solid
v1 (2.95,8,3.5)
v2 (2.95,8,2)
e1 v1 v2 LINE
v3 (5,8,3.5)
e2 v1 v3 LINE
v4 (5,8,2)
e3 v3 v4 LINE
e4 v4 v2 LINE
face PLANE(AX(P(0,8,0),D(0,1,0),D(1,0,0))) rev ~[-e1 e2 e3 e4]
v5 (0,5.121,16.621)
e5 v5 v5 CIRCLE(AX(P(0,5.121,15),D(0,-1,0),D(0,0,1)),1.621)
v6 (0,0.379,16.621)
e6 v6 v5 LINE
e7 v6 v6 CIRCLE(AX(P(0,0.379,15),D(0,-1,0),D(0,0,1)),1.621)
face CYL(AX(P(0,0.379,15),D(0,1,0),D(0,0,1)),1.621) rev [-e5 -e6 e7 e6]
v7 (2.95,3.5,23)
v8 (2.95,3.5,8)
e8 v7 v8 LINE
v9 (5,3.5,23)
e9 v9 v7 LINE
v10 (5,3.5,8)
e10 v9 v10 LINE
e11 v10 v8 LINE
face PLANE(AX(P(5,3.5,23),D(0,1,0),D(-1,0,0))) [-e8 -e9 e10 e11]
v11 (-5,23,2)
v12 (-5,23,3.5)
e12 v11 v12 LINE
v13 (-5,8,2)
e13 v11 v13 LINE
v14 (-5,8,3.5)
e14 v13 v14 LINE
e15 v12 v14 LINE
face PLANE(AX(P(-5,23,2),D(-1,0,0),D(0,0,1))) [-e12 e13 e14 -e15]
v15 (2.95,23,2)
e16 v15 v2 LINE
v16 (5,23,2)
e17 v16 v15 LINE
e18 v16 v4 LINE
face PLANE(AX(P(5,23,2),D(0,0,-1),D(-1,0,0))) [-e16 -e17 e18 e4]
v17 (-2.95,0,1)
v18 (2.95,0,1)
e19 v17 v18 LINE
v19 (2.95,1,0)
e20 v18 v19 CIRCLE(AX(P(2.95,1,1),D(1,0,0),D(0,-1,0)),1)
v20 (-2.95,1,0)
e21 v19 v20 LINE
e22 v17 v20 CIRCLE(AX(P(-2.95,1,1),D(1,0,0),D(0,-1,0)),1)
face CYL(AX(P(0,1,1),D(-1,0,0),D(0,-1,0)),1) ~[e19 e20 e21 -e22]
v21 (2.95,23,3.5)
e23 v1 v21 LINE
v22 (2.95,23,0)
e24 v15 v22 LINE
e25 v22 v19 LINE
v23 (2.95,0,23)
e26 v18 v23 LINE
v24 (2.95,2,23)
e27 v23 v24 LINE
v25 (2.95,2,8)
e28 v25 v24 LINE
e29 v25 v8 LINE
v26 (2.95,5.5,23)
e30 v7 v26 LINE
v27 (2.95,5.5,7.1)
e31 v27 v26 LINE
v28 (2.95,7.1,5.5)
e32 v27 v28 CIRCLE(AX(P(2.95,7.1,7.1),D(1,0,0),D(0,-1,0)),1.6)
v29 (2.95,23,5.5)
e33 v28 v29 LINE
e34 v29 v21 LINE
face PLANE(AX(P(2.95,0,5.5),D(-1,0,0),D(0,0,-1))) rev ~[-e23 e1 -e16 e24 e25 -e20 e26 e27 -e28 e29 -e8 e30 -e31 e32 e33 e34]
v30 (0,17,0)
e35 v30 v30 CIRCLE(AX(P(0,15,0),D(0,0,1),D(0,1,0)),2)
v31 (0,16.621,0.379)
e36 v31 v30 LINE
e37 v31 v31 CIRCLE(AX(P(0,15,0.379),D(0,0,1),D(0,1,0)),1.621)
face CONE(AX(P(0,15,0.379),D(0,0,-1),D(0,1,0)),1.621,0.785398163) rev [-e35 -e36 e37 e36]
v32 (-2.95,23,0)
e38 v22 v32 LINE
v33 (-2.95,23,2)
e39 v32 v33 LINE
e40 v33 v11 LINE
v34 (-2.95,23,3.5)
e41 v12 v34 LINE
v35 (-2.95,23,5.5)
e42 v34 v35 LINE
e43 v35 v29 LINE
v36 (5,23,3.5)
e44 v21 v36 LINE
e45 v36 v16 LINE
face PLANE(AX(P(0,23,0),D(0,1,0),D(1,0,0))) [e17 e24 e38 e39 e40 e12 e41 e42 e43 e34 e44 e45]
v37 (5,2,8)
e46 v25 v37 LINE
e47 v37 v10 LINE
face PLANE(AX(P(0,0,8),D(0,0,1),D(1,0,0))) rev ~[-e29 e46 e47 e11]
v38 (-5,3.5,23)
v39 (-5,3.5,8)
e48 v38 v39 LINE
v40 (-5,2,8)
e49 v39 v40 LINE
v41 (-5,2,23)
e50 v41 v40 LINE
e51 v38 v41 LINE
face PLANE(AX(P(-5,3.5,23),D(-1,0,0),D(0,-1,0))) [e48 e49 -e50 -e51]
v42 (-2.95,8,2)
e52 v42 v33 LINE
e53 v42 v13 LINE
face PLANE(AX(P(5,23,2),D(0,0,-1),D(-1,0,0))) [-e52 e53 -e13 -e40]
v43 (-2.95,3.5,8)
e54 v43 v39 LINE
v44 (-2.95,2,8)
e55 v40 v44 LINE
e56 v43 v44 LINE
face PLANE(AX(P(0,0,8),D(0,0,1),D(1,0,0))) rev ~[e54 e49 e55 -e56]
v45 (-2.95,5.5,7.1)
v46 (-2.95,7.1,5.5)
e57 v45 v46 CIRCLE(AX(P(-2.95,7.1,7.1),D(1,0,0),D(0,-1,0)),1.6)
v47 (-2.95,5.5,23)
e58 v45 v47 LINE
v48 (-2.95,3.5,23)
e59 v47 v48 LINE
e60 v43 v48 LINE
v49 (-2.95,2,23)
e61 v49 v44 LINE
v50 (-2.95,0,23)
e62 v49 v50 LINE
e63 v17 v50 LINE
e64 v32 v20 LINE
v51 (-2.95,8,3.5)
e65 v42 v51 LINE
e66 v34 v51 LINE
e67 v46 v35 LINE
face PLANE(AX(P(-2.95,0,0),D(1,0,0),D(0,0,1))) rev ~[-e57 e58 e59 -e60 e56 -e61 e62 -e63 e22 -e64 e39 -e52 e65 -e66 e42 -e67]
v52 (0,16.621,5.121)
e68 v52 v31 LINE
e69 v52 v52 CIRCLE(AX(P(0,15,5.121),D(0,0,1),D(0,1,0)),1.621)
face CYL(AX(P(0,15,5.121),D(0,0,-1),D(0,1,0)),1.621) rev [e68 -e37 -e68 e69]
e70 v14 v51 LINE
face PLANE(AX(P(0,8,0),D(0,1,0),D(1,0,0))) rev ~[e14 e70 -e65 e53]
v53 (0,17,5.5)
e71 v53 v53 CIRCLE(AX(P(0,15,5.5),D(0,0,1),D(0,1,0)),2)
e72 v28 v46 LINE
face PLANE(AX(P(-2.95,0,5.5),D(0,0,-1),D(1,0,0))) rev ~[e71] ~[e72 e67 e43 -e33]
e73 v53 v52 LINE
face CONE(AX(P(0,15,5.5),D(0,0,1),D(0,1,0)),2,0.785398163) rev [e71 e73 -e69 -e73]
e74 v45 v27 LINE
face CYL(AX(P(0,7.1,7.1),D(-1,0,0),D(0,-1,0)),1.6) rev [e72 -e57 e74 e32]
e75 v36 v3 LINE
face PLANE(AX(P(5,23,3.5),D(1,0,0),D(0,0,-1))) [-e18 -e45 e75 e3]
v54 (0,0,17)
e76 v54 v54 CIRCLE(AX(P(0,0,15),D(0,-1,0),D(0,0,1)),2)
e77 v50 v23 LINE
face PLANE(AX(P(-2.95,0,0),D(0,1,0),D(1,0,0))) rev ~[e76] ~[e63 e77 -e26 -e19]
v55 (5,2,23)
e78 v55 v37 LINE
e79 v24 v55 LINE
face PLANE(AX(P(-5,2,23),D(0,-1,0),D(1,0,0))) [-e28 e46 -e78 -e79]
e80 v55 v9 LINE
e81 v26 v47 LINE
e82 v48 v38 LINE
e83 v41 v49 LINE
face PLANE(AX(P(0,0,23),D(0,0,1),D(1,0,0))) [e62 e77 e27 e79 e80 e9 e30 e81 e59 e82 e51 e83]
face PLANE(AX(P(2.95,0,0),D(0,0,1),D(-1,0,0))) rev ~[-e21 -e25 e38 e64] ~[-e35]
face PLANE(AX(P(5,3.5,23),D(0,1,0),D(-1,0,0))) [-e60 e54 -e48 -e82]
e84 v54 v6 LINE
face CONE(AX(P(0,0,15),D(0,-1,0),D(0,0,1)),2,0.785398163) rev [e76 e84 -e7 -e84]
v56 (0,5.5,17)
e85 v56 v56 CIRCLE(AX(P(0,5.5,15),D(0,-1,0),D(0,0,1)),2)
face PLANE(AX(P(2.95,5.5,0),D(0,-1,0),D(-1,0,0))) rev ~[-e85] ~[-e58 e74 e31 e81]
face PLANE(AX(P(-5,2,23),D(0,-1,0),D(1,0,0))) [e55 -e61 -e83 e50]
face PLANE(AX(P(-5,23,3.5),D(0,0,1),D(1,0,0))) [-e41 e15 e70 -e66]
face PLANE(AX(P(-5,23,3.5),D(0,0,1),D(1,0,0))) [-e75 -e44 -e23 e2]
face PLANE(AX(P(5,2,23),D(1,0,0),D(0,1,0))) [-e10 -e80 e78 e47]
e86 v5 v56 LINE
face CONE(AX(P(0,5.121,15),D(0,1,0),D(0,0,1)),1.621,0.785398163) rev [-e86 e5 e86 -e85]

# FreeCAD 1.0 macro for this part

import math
import FreeCAD as App
import Part
import Sketcher
Q = App.Units.Quantity

doc = App.newDocument("Part")
body = doc.addObject("PartDesign::Body", "Body")

# Sketch on XY plane
sketch1 = body.newObject("Sketcher::SketchObject", "Sketch")
sketch1.AttachmentSupport = (doc.getObject("XY_Plane"), [""])
sketch1.MapMode = "FlatFace"
sketch1.addGeometry(Part.LineSegment(App.Vector(-3, 6, 0), App.Vector(-3, 0, 0)), False)
sketch1.addGeometry(Part.LineSegment(App.Vector(-3, 0, 0), App.Vector(3, 0, 0)), False)
sketch1.addGeometry(Part.LineSegment(App.Vector(3, 0, 0), App.Vector(3, 6, 0)), False)
sketch1.addGeometry(Part.LineSegment(App.Vector(3, 6, 0), App.Vector(-3, 6, 0)), False)
sketch1.addConstraint(Sketcher.Constraint("Coincident", 0, 2, 1, 1))
sketch1.addConstraint(Sketcher.Constraint("Coincident", 1, 2, 2, 1))
sketch1.addConstraint(Sketcher.Constraint("Coincident", 2, 2, 3, 1))
sketch1.addConstraint(Sketcher.Constraint("Coincident", 3, 2, 0, 1))
sketch1.addConstraint(Sketcher.Constraint("Vertical", 0))
sketch1.addConstraint(Sketcher.Constraint("Horizontal", 1))
sketch1.addConstraint(Sketcher.Constraint("Vertical", 2))
sketch1.addConstraint(Sketcher.Constraint("Horizontal", 3))
sketch1.addConstraint(Sketcher.Constraint("Symmetric", 0, 2, 1, 2, -1, 1))
sketch1.addConstraint(Sketcher.Constraint("DistanceX", 1, 1, 1, 2, Q("5.9 mm")))
sketch1.addConstraint(Sketcher.Constraint("DistanceY", 0, 2, 0, 1, Q("5.5 mm")))
pad1 = body.newObject("PartDesign::Pad", "Pad")
pad1.Profile = sketch1
pad1.Length = 23

# Sketch on XY plane
sketch2 = body.newObject("Sketcher::SketchObject", "Sketch001")
sketch2.AttachmentSupport = (doc.getObject("XY_Plane"), [""])
sketch2.MapMode = "FlatFace"
sketch2.AttachmentOffset = App.Placement(App.Vector(0, 0, 23), App.Rotation())
sketch2.addGeometry(Part.LineSegment(App.Vector(-5, 3.5, 0), App.Vector(-5, 2, 0)), False)
sketch2.addGeometry(Part.LineSegment(App.Vector(-5, 2, 0), App.Vector(5, 2, 0)), False)
sketch2.addGeometry(Part.LineSegment(App.Vector(5, 2, 0), App.Vector(5, 3.5, 0)), False)
sketch2.addGeometry(Part.LineSegment(App.Vector(5, 3.5, 0), App.Vector(-5, 3.5, 0)), False)
sketch2.addConstraint(Sketcher.Constraint("Coincident", 0, 2, 1, 1))
sketch2.addConstraint(Sketcher.Constraint("Coincident", 1, 2, 2, 1))
sketch2.addConstraint(Sketcher.Constraint("Coincident", 2, 2, 3, 1))
sketch2.addConstraint(Sketcher.Constraint("Coincident", 3, 2, 0, 1))
sketch2.addConstraint(Sketcher.Constraint("Vertical", 0))
sketch2.addConstraint(Sketcher.Constraint("Horizontal", 1))
sketch2.addConstraint(Sketcher.Constraint("Vertical", 2))
sketch2.addConstraint(Sketcher.Constraint("Horizontal", 3))
sketch2.addConstraint(Sketcher.Constraint("DistanceX", 1, 1, 1, 2, Q("10 mm")))
sketch2.addConstraint(Sketcher.Constraint("DistanceY", 0, 2, 0, 1, Q("1.5 mm")))
sketch2.addConstraint(Sketcher.Constraint("DistanceX", 0, 2, -1, 1, Q("5 mm")))
sketch2.addConstraint(Sketcher.Constraint("DistanceY", -1, 1, 0, 2, Q("2 mm")))
pad2 = body.newObject("PartDesign::Pad", "Pad001")
pad2.Profile = sketch2
pad2.Length = 15
pad2.Reversed = True

# Sketch on XZ plane
sketch3 = body.newObject("Sketcher::SketchObject", "Sketch002")
sketch3.AttachmentSupport = (doc.getObject("XZ_Plane"), [""])
sketch3.MapMode = "FlatFace"
sketch3.addGeometry(Part.LineSegment(App.Vector(-3, 0, 0), App.Vector(-3, 6, 0)), False)
sketch3.addGeometry(Part.LineSegment(App.Vector(-3, 6, 0), App.Vector(3, 6, 0)), False)
sketch3.addGeometry(Part.LineSegment(App.Vector(3, 6, 0), App.Vector(3, 0, 0)), False)
sketch3.addGeometry(Part.LineSegment(App.Vector(3, 0, 0), App.Vector(-3, 0, 0)), False)
sketch3.addConstraint(Sketcher.Constraint("Coincident", 0, 2, 1, 1))
sketch3.addConstraint(Sketcher.Constraint("Coincident", 1, 2, 2, 1))
sketch3.addConstraint(Sketcher.Constraint("Coincident", 2, 2, 3, 1))
sketch3.addConstraint(Sketcher.Constraint("Coincident", 3, 2, 0, 1))
sketch3.addConstraint(Sketcher.Constraint("Vertical", 0))
sketch3.addConstraint(Sketcher.Constraint("Horizontal", 1))
sketch3.addConstraint(Sketcher.Constraint("Vertical", 2))
sketch3.addConstraint(Sketcher.Constraint("Horizontal", 3))
sketch3.addConstraint(Sketcher.Constraint("Symmetric", 2, 2, 3, 2, -1, 1))
sketch3.addConstraint(Sketcher.Constraint("DistanceX", 1, 1, 1, 2, Q("5.9 mm")))
sketch3.addConstraint(Sketcher.Constraint("DistanceY", 0, 1, 0, 2, Q("5.5 mm")))
pad3 = body.newObject("PartDesign::Pad", "Pad002")
pad3.Profile = sketch3
pad3.Length = 23
pad3.Reversed = True

# Sketch on XZ plane
sketch4 = body.newObject("Sketcher::SketchObject", "Sketch003")
sketch4.AttachmentSupport = (doc.getObject("XZ_Plane"), [""])
sketch4.MapMode = "FlatFace"
sketch4.AttachmentOffset = App.Placement(App.Vector(0, 0, -23), App.Rotation())
sketch4.addGeometry(Part.LineSegment(App.Vector(-5, 2, 0), App.Vector(-5, 3.5, 0)), False)
sketch4.addGeometry(Part.LineSegment(App.Vector(-5, 3.5, 0), App.Vector(5, 3.5, 0)), False)
sketch4.addGeometry(Part.LineSegment(App.Vector(5, 3.5, 0), App.Vector(5, 2, 0)), False)
sketch4.addGeometry(Part.LineSegment(App.Vector(5, 2, 0), App.Vector(-5, 2, 0)), False)
sketch4.addConstraint(Sketcher.Constraint("Coincident", 0, 2, 1, 1))
sketch4.addConstraint(Sketcher.Constraint("Coincident", 1, 2, 2, 1))
sketch4.addConstraint(Sketcher.Constraint("Coincident", 2, 2, 3, 1))
sketch4.addConstraint(Sketcher.Constraint("Coincident", 3, 2, 0, 1))
sketch4.addConstraint(Sketcher.Constraint("Vertical", 0))
sketch4.addConstraint(Sketcher.Constraint("Horizontal", 1))
sketch4.addConstraint(Sketcher.Constraint("Vertical", 2))
sketch4.addConstraint(Sketcher.Constraint("Horizontal", 3))
sketch4.addConstraint(Sketcher.Constraint("DistanceX", 1, 1, 1, 2, Q("10 mm")))
sketch4.addConstraint(Sketcher.Constraint("DistanceY", 0, 1, 0, 2, Q("1.5 mm")))
sketch4.addConstraint(Sketcher.Constraint("DistanceX", 0, 2, -1, 1, Q("5 mm")))
sketch4.addConstraint(Sketcher.Constraint("DistanceY", -1, 1, 2, 2, Q("2 mm")))
pad4 = body.newObject("PartDesign::Pad", "Pad003")
pad4.Profile = sketch4
pad4.Length = 15

# Sketch on YZ plane
sketch5 = body.newObject("Sketcher::SketchObject", "Sketch004")
sketch5.AttachmentSupport = (doc.getObject("YZ_Plane"), [""])
sketch5.MapMode = "FlatFace"
sketch5.addGeometry(Part.LineSegment(App.Vector(0, 15, 0), App.Vector(5.5, 15, 0)), False)
sketch5.addGeometry(Part.LineSegment(App.Vector(5.5, 15, 0), App.Vector(5.5, 17, 0)), False)
sketch5.addGeometry(Part.LineSegment(App.Vector(5.5, 17, 0), App.Vector(5.1, 16.6, 0)), False)
sketch5.addGeometry(Part.LineSegment(App.Vector(5.1, 16.6, 0), App.Vector(0.4, 16.6, 0)), False)
sketch5.addGeometry(Part.LineSegment(App.Vector(0.4, 16.6, 0), App.Vector(0, 17, 0)), False)
sketch5.addGeometry(Part.LineSegment(App.Vector(0, 17, 0), App.Vector(0, 15, 0)), False)
sketch5.addGeometry(Part.LineSegment(App.Vector(5.5, 15, 0), App.Vector(0, 15, 0)), True)  # axis
sketch5.addConstraint(Sketcher.Constraint("Coincident", 0, 2, 1, 1))
sketch5.addConstraint(Sketcher.Constraint("Coincident", 1, 2, 2, 1))
sketch5.addConstraint(Sketcher.Constraint("Coincident", 2, 2, 3, 1))
sketch5.addConstraint(Sketcher.Constraint("Coincident", 3, 2, 4, 1))
sketch5.addConstraint(Sketcher.Constraint("Coincident", 4, 2, 5, 1))
sketch5.addConstraint(Sketcher.Constraint("Coincident", 5, 2, 0, 1))
sketch5.addConstraint(Sketcher.Constraint("Horizontal", 0))
sketch5.addConstraint(Sketcher.Constraint("Vertical", 1))
sketch5.addConstraint(Sketcher.Constraint("Horizontal", 3))
sketch5.addConstraint(Sketcher.Constraint("Vertical", 5))
sketch5.addConstraint(Sketcher.Constraint("Horizontal", 6))
sketch5.addConstraint(Sketcher.Constraint("Coincident", 6, 1, 0, 2))
sketch5.addConstraint(Sketcher.Constraint("PointOnObject", 4, 2, -2))
sketch5.addConstraint(Sketcher.Constraint("PointOnObject", 6, 2, -2))
sketch5.addConstraint(Sketcher.Constraint("Perpendicular", 2, 4))
sketch5.addConstraint(Sketcher.Constraint("Horizontal", 1, 2, 4, 2))
sketch5.addConstraint(Sketcher.Constraint("Equal", 2, 4))
sketch5.addConstraint(Sketcher.Constraint("DistanceY", 1, 1, 1, 2, Q("2 mm")))
sketch5.addConstraint(Sketcher.Constraint("DistanceX", 0, 1, 0, 2, Q("5.5 mm")))
sketch5.addConstraint(Sketcher.Constraint("DistanceY", -1, 1, 0, 2, Q("15 mm")))
sketch5.addConstraint(Sketcher.Constraint("DistanceX", 3, 2, 3, 1, Q("4.742 mm")))
groove = body.newObject("PartDesign::Groove", "Groove")
groove.Profile = sketch5
groove.ReferenceAxis = (sketch5, ["Axis0"])
groove.Angle = 360

# Sketch on YZ plane
sketch6 = body.newObject("Sketcher::SketchObject", "Sketch005")
sketch6.AttachmentSupport = (doc.getObject("YZ_Plane"), [""])
sketch6.MapMode = "FlatFace"
sketch6.addGeometry(Part.LineSegment(App.Vector(15, 5.5, 0), App.Vector(15, 0, 0)), False)
sketch6.addGeometry(Part.LineSegment(App.Vector(15, 0, 0), App.Vector(17, 0, 0)), False)
sketch6.addGeometry(Part.LineSegment(App.Vector(17, 0, 0), App.Vector(16.6, 0.4, 0)), False)
sketch6.addGeometry(Part.LineSegment(App.Vector(16.6, 0.4, 0), App.Vector(16.6, 5.1, 0)), False)
sketch6.addGeometry(Part.LineSegment(App.Vector(16.6, 5.1, 0), App.Vector(17, 5.5, 0)), False)
sketch6.addGeometry(Part.LineSegment(App.Vector(17, 5.5, 0), App.Vector(15, 5.5, 0)), False)
sketch6.addGeometry(Part.LineSegment(App.Vector(15, 0, 0), App.Vector(15, 5.5, 0)), True)  # axis
sketch6.addConstraint(Sketcher.Constraint("Coincident", 0, 2, 1, 1))
sketch6.addConstraint(Sketcher.Constraint("Coincident", 1, 2, 2, 1))
sketch6.addConstraint(Sketcher.Constraint("Coincident", 2, 2, 3, 1))
sketch6.addConstraint(Sketcher.Constraint("Coincident", 3, 2, 4, 1))
sketch6.addConstraint(Sketcher.Constraint("Coincident", 4, 2, 5, 1))
sketch6.addConstraint(Sketcher.Constraint("Coincident", 5, 2, 0, 1))
sketch6.addConstraint(Sketcher.Constraint("Vertical", 0))
sketch6.addConstraint(Sketcher.Constraint("Horizontal", 1))
sketch6.addConstraint(Sketcher.Constraint("Vertical", 3))
sketch6.addConstraint(Sketcher.Constraint("Horizontal", 5))
sketch6.addConstraint(Sketcher.Constraint("Vertical", 6))
sketch6.addConstraint(Sketcher.Constraint("Coincident", 6, 1, 0, 2))
sketch6.addConstraint(Sketcher.Constraint("PointOnObject", 0, 2, -1))
sketch6.addConstraint(Sketcher.Constraint("Perpendicular", 2, 4))
sketch6.addConstraint(Sketcher.Constraint("Horizontal", 4, 2, 6, 2))
sketch6.addConstraint(Sketcher.Constraint("Vertical", 1, 2, 4, 2))
sketch6.addConstraint(Sketcher.Constraint("Equal", 2, 4))
sketch6.addConstraint(Sketcher.Constraint("DistanceX", 1, 1, 1, 2, Q("2 mm")))
sketch6.addConstraint(Sketcher.Constraint("DistanceY", 0, 2, 0, 1, Q("5.5 mm")))
sketch6.addConstraint(Sketcher.Constraint("DistanceX", -1, 1, 0, 2, Q("15 mm")))
sketch6.addConstraint(Sketcher.Constraint("DistanceY", 3, 1, 3, 2, Q("4.742 mm")))
groove2 = body.newObject("PartDesign::Groove", "Groove001")
groove2.Profile = sketch6
groove2.ReferenceAxis = (sketch6, ["Axis0"])
groove2.Angle = 360

# Sketch on YZ plane
sketch7 = body.newObject("Sketcher::SketchObject", "Sketch006")
sketch7.AttachmentSupport = (doc.getObject("YZ_Plane"), [""])
sketch7.MapMode = "FlatFace"
sketch7.addGeometry(Part.ArcOfCircle(Part.Circle(App.Vector(7.1, 7.1, 0), App.Vector(0, 0, 1), 1.6), math.radians(180), math.radians(270)), False)
sketch7.addGeometry(Part.LineSegment(App.Vector(5.5, 7.1, 0), App.Vector(5.5, 5.5, 0)), False)
sketch7.addGeometry(Part.LineSegment(App.Vector(5.5, 5.5, 0), App.Vector(7.1, 5.5, 0)), False)
sketch7.addConstraint(Sketcher.Constraint("Tangent", 0, 1, 1, 1))
sketch7.addConstraint(Sketcher.Constraint("Coincident", 1, 2, 2, 1))
sketch7.addConstraint(Sketcher.Constraint("Tangent", 2, 2, 0, 2))
sketch7.addConstraint(Sketcher.Constraint("Vertical", 1))
sketch7.addConstraint(Sketcher.Constraint("Horizontal", 2))
sketch7.addConstraint(Sketcher.Constraint("Radius", 0, Q("1.6 mm")))
sketch7.addConstraint(Sketcher.Constraint("DistanceX", -1, 1, 0, 3, Q("7.1 mm")))
sketch7.addConstraint(Sketcher.Constraint("DistanceY", -1, 1, 0, 3, Q("7.1 mm")))
pad5 = body.newObject("PartDesign::Pad", "Pad004")
pad5.Profile = sketch7
pad5.Length = 5.9
pad5.Midplane = True

# Sketch on YZ plane
sketch8 = body.newObject("Sketcher::SketchObject", "Sketch007")
sketch8.AttachmentSupport = (doc.getObject("YZ_Plane"), [""])
sketch8.MapMode = "FlatFace"
sketch8.addGeometry(Part.ArcOfCircle(Part.Circle(App.Vector(1, 1, 0), App.Vector(0, 0, 1), 1), math.radians(180), math.radians(270)), False)
sketch8.addGeometry(Part.LineSegment(App.Vector(0, 1, 0), App.Vector(0, 0, 0)), False)
sketch8.addGeometry(Part.LineSegment(App.Vector(0, 0, 0), App.Vector(1, 0, 0)), False)
sketch8.addConstraint(Sketcher.Constraint("Tangent", 0, 1, 1, 1))
sketch8.addConstraint(Sketcher.Constraint("Coincident", 1, 2, 2, 1))
sketch8.addConstraint(Sketcher.Constraint("Tangent", 2, 2, 0, 2))
sketch8.addConstraint(Sketcher.Constraint("Vertical", 1))
sketch8.addConstraint(Sketcher.Constraint("Horizontal", 2))
sketch8.addConstraint(Sketcher.Constraint("Coincident", 1, 2, -1, 1))
sketch8.addConstraint(Sketcher.Constraint("Radius", 0, Q("1 mm")))
pocket1 = body.newObject("PartDesign::Pocket", "Pocket")
pocket1.Profile = sketch8
pocket1.Length = 5.9
pocket1.Midplane = True

doc.recompute()
